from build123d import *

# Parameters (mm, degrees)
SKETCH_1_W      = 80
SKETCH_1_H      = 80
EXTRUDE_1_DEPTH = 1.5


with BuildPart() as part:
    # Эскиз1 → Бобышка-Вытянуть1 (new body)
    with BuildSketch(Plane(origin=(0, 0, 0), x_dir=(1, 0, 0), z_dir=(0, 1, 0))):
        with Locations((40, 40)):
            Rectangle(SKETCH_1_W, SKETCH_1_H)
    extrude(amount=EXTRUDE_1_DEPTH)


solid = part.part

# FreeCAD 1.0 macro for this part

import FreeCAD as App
import Part
import Sketcher

V = App.Vector
Q = App.Units.Quantity


def add_polygon(sketch, points):
    """Adds a closed chain of lines whose ends are joined by coincident constraints."""
    first, n = sketch.GeometryCount, len(points)
    for a, b in zip(points, points[1:] + points[:1]):
        sketch.addGeometry(Part.LineSegment(App.Vector(*a, 0), App.Vector(*b, 0)), False)
    for i in range(n):
        sketch.addConstraint(Sketcher.Constraint("Coincident", first + i, 2, first + (i + 1) % n, 1))

doc = App.newDocument("Part")
body = doc.addObject("PartDesign::Body", "Body")

# Sketch on XZ plane
sketch1 = body.newObject("Sketcher::SketchObject", "Sketch")
sketch1.AttachmentSupport = (doc.getObject("XZ_Plane"), [""])
sketch1.MapMode = "FlatFace"
add_polygon(sketch1, [(0, -80), (0, 0), (80, 0), (80, -80)])  # lines 0-3
sketch1.addConstraint([
    Sketcher.Constraint("Vertical", 0),
    Sketcher.Constraint("Horizontal", 1),
    Sketcher.Constraint("Vertical", 2),
    Sketcher.Constraint("Horizontal", 3),
    Sketcher.Constraint("Coincident", 0, 2, -1, 1),
    Sketcher.Constraint("Equal", 3, 0),
    Sketcher.Constraint("DistanceX", 1, 1, 1, 2, Q("80 mm")),
])
pad1 = body.newObject("PartDesign::Pad", "Pad")
pad1.Profile = sketch1
pad1.Length = 1.5
pad1.Reversed = True

doc.recompute()
